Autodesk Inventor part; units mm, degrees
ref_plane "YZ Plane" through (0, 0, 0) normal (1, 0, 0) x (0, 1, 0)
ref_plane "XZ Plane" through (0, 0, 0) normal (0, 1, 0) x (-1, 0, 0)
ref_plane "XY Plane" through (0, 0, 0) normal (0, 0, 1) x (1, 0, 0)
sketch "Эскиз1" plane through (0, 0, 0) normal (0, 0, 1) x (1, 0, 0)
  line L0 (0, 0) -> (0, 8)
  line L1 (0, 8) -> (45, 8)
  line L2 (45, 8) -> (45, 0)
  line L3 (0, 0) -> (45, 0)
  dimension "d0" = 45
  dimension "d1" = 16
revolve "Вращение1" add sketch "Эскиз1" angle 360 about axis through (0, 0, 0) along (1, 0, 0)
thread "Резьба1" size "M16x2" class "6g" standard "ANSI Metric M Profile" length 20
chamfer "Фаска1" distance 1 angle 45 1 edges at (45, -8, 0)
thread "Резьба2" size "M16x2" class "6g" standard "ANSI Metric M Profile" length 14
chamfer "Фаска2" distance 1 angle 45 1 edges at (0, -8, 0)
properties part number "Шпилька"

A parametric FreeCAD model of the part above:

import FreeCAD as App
import Part
import Sketcher


def edges_at(feature, points):
    """Names of the edges that pass closest to the given points."""
    edges = feature.Shape.Edges
    near = lambda p: min(range(len(edges)), key=lambda i: edges[i].distToShape(Part.Vertex(*p))[0])
    return sorted({f"Edge{near(p) + 1}" for p in points})


def add_polygon(sketch, points):
    """Adds a closed chain of lines whose ends are joined by coincident constraints."""
    first, n = sketch.GeometryCount, len(points)
    for a, b in zip(points, points[1:] + points[:1]):
        sketch.addGeometry(Part.LineSegment(App.Vector(*a, 0), App.Vector(*b, 0)), False)
    for i in range(n):
        sketch.addConstraint(Sketcher.Constraint("Coincident", first + i, 2, first + (i + 1) % n, 1))

doc = App.newDocument("Part")
body = doc.addObject("PartDesign::Body", "Body")

sketch1 = body.newObject("Sketcher::SketchObject", "Sketch")
sketch1.AttachmentSupport = (doc.getObject("XY_Plane"), [""])
sketch1.MapMode = "FlatFace"
add_polygon(sketch1, [(0, 8), (0, 0), (45, 0), (45, 8)])
sketch1.addConstraint(Sketcher.Constraint("Vertical", 0))
sketch1.addConstraint(Sketcher.Constraint("Horizontal", 1))
sketch1.addConstraint(Sketcher.Constraint("Vertical", 2))
sketch1.addConstraint(Sketcher.Constraint("Horizontal", 3))
sketch1.addConstraint(Sketcher.Constraint("Coincident", 0, 2, -1, 1))
sketch1.addConstraint(Sketcher.Constraint("DistanceX", 1, 1, 1, 2, 45.0))
sketch1.addConstraint(Sketcher.Constraint("DistanceY", 0, 2, 0, 1, 8.0))
revolution = body.newObject("PartDesign::Revolution", "Revolution")
revolution.Profile = sketch1
revolution.ReferenceAxis = (sketch1, ["H_Axis"])
revolution.Angle = 360
doc.recompute()

chamfer = body.newObject("PartDesign::Chamfer", "Chamfer")
chamfer.Base = (revolution, edges_at(revolution, [(45, -8, 0)]))
chamfer.Size = 1
doc.recompute()

chamfer2 = body.newObject("PartDesign::Chamfer", "Chamfer001")
chamfer2.Base = (chamfer, edges_at(chamfer, [(0, -8, 0)]))
chamfer2.Size = 1

doc.recompute()
